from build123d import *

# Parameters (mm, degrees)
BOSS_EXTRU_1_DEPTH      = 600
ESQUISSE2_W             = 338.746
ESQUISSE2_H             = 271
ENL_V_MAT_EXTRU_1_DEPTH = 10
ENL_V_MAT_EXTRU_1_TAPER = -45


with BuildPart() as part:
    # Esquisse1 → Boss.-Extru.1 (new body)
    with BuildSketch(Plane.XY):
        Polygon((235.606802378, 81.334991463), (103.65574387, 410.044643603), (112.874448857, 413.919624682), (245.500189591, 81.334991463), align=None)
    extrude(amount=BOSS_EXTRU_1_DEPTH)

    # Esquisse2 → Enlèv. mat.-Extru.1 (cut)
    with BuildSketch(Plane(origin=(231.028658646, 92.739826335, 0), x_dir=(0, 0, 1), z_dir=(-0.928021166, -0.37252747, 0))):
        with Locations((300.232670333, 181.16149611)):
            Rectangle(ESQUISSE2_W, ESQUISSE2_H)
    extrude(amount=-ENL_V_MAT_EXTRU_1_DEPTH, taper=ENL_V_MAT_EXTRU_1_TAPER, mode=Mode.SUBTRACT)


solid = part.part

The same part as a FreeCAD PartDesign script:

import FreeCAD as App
import Part
import Sketcher
from FreeCAD import Vector


def add_polygon(sketch, points):
    """Adds a closed chain of lines whose ends are joined by coincident constraints."""
    first, n = sketch.GeometryCount, len(points)
    for a, b in zip(points, points[1:] + points[:1]):
        sketch.addGeometry(Part.LineSegment(App.Vector(*a, 0), App.Vector(*b, 0)), False)
    for i in range(n):
        sketch.addConstraint(Sketcher.Constraint("Coincident", first + i, 2, first + (i + 1) % n, 1))

doc = App.newDocument("Part")
body = doc.addObject("PartDesign::Body", "Body")

# Sketch on XY plane
sketch1 = body.newObject("Sketcher::SketchObject", "Sketch")
sketch1.AttachmentSupport = (doc.getObject("XY_Plane"), [""])
sketch1.MapMode = "FlatFace"
add_polygon(sketch1, [(104, 410), (236, 81), (246, 81), (113, 414)])  # lines 0-3
sketch1.addConstraint([
    Sketcher.Constraint("Horizontal", 1),
    Sketcher.Constraint("Distance", 3, 10.0),
    Sketcher.Constraint("Distance", 0, 354.204909),
    Sketcher.Constraint("DistanceX", 1, 1, 1, 2, 9.893387),
    Sketcher.Constraint("DistanceY", -1, 1, 0, 2, 81.334991),
    Sketcher.Constraint("DistanceX", -1, 1, 1, 2, 245.50019),
    Sketcher.Constraint("DistanceX", -1, 1, 2, 2, 112.874449),
    Sketcher.Constraint("DistanceY", 3, 2, 2, 2, 3.874981),
])
pad1 = body.newObject("PartDesign::Pad", "Pad")
pad1.Profile = sketch1
pad1.Length = 600

# Sketch on an angled plane
sketch2 = body.newObject("Sketcher::SketchObject", "Sketch001")
sketch2.Placement = App.Placement(Vector(231.028659, 92.739826, 0), App.Rotation(Vector(0, 0, 1), Vector(-0.37252747, 0.928021166, 0), Vector(-0.928021166, -0.37252747, 0), "ZXY"))
add_polygon(sketch2, [(131, 317), (131, 46), (470, 46), (470, 317)])  # lines 0-3
sketch2.addConstraint([
    Sketcher.Constraint("Vertical", 0),
    Sketcher.Constraint("Horizontal", 1),
    Sketcher.Constraint("Vertical", 2),
    Sketcher.Constraint("Horizontal", 3),
    Sketcher.Constraint("DistanceY", 0, 2, 0, 1, 271.0),
    Sketcher.Constraint("DistanceX", 1, 1, 1, 2, 338.746),
    Sketcher.Constraint("DistanceX", -1, 1, 0, 2, 130.85967),
    Sketcher.Constraint("DistanceY", -1, 1, 0, 2, 45.661496),
])
pocket1 = body.newObject("PartDesign::Pocket", "Pocket")
pocket1.Profile = sketch2
pocket1.Length = 10
pocket1.TaperAngle = 45

doc.recompute()
